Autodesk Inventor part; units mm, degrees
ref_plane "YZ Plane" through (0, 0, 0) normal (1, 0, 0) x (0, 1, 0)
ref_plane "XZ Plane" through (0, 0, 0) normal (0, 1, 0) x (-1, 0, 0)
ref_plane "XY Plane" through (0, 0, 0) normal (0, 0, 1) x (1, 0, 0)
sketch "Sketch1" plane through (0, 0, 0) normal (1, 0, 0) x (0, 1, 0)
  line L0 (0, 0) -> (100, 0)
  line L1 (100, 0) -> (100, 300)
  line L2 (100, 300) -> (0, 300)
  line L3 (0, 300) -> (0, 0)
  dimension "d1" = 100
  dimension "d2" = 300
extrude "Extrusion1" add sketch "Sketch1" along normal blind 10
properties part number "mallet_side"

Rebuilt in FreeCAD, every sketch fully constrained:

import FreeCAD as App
import Part
import Sketcher

doc = App.newDocument("Part")
body = doc.addObject("PartDesign::Body", "Body")

sketch1 = body.newObject("Sketcher::SketchObject", "Sketch")
sketch1.AttachmentSupport = (doc.getObject("YZ_Plane"), [""])
sketch1.MapMode = "FlatFace"
sketch1.addGeometry(Part.LineSegment(App.Vector(0, 300, 0), App.Vector(0, 0, 0)), False)
sketch1.addGeometry(Part.LineSegment(App.Vector(0, 0, 0), App.Vector(100, 0, 0)), False)
sketch1.addGeometry(Part.LineSegment(App.Vector(100, 0, 0), App.Vector(100, 300, 0)), False)
sketch1.addGeometry(Part.LineSegment(App.Vector(100, 300, 0), App.Vector(0, 300, 0)), False)
sketch1.addConstraint(Sketcher.Constraint("Coincident", 0, 2, 1, 1))
sketch1.addConstraint(Sketcher.Constraint("Coincident", 1, 2, 2, 1))
sketch1.addConstraint(Sketcher.Constraint("Coincident", 2, 2, 3, 1))
sketch1.addConstraint(Sketcher.Constraint("Coincident", 3, 2, 0, 1))
sketch1.addConstraint(Sketcher.Constraint("Vertical", 0))
sketch1.addConstraint(Sketcher.Constraint("Horizontal", 1))
sketch1.addConstraint(Sketcher.Constraint("Vertical", 2))
sketch1.addConstraint(Sketcher.Constraint("Horizontal", 3))
sketch1.addConstraint(Sketcher.Constraint("Coincident", 0, 2, -1, 1))
sketch1.addConstraint(Sketcher.Constraint("DistanceX", 1, 1, 1, 2, 100.0))
sketch1.addConstraint(Sketcher.Constraint("DistanceY", 0, 2, 0, 1, 300.0))
pad1 = body.newObject("PartDesign::Pad", "Pad")
pad1.Profile = sketch1
pad1.Length = 10

doc.recompute()
